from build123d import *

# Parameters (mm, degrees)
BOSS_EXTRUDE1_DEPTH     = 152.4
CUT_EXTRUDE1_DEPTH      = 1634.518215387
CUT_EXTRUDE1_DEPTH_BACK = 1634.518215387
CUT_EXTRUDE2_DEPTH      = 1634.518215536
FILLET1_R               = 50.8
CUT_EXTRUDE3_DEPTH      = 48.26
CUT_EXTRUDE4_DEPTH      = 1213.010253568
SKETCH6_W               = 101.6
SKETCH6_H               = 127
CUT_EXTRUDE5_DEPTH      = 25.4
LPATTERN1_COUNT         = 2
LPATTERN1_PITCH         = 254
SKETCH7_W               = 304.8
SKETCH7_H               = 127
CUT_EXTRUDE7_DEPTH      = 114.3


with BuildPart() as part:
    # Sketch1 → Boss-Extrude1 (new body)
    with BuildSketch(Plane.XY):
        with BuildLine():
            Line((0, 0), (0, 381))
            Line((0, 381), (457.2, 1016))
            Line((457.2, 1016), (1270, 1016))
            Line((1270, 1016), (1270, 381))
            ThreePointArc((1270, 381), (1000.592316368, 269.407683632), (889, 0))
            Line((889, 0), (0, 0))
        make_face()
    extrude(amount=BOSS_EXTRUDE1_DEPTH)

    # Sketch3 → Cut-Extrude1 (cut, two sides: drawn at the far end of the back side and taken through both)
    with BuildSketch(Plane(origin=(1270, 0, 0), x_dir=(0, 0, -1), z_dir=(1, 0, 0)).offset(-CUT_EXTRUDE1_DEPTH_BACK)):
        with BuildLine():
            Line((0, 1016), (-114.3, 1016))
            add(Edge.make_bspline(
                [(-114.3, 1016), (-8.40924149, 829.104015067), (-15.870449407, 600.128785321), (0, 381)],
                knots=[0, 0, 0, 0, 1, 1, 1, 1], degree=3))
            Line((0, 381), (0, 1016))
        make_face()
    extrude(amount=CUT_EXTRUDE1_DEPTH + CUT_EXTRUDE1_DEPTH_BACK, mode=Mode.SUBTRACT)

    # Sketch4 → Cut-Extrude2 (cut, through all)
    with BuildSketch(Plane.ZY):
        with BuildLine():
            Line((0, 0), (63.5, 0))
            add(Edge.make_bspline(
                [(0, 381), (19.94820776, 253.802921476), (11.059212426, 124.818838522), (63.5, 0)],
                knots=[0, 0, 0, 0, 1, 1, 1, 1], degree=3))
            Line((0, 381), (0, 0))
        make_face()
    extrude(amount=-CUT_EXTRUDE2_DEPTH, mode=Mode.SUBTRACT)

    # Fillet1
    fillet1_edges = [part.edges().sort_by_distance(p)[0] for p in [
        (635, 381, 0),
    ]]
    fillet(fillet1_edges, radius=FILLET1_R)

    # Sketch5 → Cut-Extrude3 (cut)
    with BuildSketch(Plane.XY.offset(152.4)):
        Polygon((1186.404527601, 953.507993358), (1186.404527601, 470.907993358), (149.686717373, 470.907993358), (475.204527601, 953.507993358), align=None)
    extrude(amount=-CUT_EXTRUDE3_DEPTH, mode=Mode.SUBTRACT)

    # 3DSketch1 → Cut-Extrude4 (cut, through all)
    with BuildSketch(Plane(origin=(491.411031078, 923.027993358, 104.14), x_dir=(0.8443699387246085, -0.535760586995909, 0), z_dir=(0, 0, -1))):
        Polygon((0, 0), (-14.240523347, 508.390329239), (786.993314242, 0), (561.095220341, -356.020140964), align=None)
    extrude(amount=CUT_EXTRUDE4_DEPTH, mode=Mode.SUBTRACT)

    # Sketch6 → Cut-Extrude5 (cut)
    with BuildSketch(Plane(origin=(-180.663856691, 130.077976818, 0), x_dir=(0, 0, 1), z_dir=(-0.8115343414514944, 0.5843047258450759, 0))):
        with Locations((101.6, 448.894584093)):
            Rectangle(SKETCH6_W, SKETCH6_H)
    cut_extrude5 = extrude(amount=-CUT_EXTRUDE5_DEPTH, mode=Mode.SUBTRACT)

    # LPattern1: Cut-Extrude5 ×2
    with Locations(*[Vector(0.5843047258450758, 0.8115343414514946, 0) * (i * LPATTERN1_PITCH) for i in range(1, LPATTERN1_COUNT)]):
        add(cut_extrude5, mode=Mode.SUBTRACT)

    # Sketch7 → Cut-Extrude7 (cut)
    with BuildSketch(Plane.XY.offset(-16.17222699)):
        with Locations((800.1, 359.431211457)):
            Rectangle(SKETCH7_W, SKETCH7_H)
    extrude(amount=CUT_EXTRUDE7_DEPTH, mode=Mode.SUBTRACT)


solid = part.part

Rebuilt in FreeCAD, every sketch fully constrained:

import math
import FreeCAD as App
import Part
import Sketcher

V = App.Vector
Q = App.Units.Quantity


def edges_at(feature, points):
    """Names of the edges that pass closest to the given points."""
    edges = feature.Shape.Edges
    near = lambda p: min(range(len(edges)), key=lambda i: edges[i].distToShape(Part.Vertex(*p))[0])
    return sorted({f"Edge{near(p) + 1}" for p in points})


def add_polygon(sketch, points):
    """Adds a closed chain of lines whose ends are joined by coincident constraints."""
    first, n = sketch.GeometryCount, len(points)
    for a, b in zip(points, points[1:] + points[:1]):
        sketch.addGeometry(Part.LineSegment(App.Vector(*a, 0), App.Vector(*b, 0)), False)
    for i in range(n):
        sketch.addConstraint(Sketcher.Constraint("Coincident", first + i, 2, first + (i + 1) % n, 1))

doc = App.newDocument("Part")
body = doc.addObject("PartDesign::Body", "Body")

sketch1 = body.newObject("Sketcher::SketchObject", "Sketch")
sketch1.AttachmentSupport = (doc.getObject("XY_Plane"), [""])
sketch1.MapMode = "FlatFace"
sketch1.addGeometry([
    Part.LineSegment(V(0, 381, 0), V(0, 0, 0)),
    Part.LineSegment(V(0, 0, 0), V(889, 0, 0)),
    Part.ArcOfCircle(Part.Circle(V(1270, 0, 0), V(0, 0, 1), 381), math.radians(90), math.radians(180)),
    Part.LineSegment(V(1270, 381, 0), V(1270, 1016, 0)),
    Part.LineSegment(V(1270, 1016, 0), V(457, 1016, 0)),
    Part.LineSegment(V(457, 1016, 0), V(0, 381, 0)),
], False)
sketch1.addConstraint([
    Sketcher.Constraint("Coincident", 0, 2, 1, 1),
    Sketcher.Constraint("Coincident", 1, 2, 2, 2),
    Sketcher.Constraint("Coincident", 2, 1, 3, 1),
    Sketcher.Constraint("Coincident", 3, 2, 4, 1),
    Sketcher.Constraint("Coincident", 4, 2, 5, 1),
    Sketcher.Constraint("Coincident", 5, 2, 0, 1),
    Sketcher.Constraint("Vertical", 0),
    Sketcher.Constraint("Horizontal", 1),
    Sketcher.Constraint("Vertical", 3),
    Sketcher.Constraint("Horizontal", 4),
    Sketcher.Constraint("Coincident", 0, 2, -1, 1),
    Sketcher.Constraint("PointOnObject", 2, 3, -1),
    Sketcher.Constraint("Horizontal", 2, 1, 5, 2),
    Sketcher.Constraint("Radius", 2, Q("15 in")),
    Sketcher.Constraint("DistanceX", 1, 1, 1, 2, Q("35 in")),
    Sketcher.Constraint("DistanceX", 4, 2, 4, 1, Q("32 in")),
    Sketcher.Constraint("DistanceY", 3, 1, 3, 2, Q("25 in")),
    Sketcher.Constraint("DistanceX", -1, 1, 3, 2, Q("50 in")),
])
pad1 = body.newObject("PartDesign::Pad", "Pad")
pad1.Profile = sketch1
pad1.Length = Q("6 in")

sketch2 = body.newObject("Sketcher::SketchObject", "Sketch001")
sketch2.AttachmentSupport = (doc.getObject("YZ_Plane"), [""])
sketch2.MapMode = "FlatFace"
sketch2.AttachmentOffset = App.Placement(V(0, 0, 50 * 25.4), App.Rotation())
sketch2.addGeometry([
    Part.LineSegment(V(1016, 0, 0), V(1016, 114.3, 0)),
    Part.BSplineCurve([V(1016, 114.3, 0), V(829.104015, 8.409241, 0), V(600.128785, 15.870449, 0), V(381, 0, 0)], [4, 4], [0, 1], False, 3, [1, 1, 1, 1], False),
    Part.LineSegment(V(381, 0, 0), V(1016, 0, 0)),
], False)
sketch2.addConstraint([
    Sketcher.Constraint("Block", 1),
    Sketcher.Constraint("Coincident", 0, 2, 1, 1),
    Sketcher.Constraint("Coincident", 1, 2, 2, 1),
    Sketcher.Constraint("Coincident", 2, 2, 0, 1),
    Sketcher.Constraint("Vertical", 0),
    Sketcher.Constraint("Horizontal", 2),
])
pocket1 = body.newObject("PartDesign::Pocket", "Pocket")
pocket1.Profile = sketch2
pocket1.Type = "ThroughAll"
pocket1.Midplane = True

sketch3 = body.newObject("Sketcher::SketchObject", "Sketch002")
sketch3.AttachmentSupport = (doc.getObject("YZ_Plane"), [""])
sketch3.MapMode = "FlatFace"
sketch3.addGeometry([
    Part.LineSegment(V(0, 0, 0), V(0, 63.5, 0)),
    Part.BSplineCurve([V(381, 0, 0), V(253.802921, 19.948208, 0), V(124.818839, 11.059212, 0), V(0, 63.5, 0)], [4, 4], [0, 1], False, 3, [1, 1, 1, 1], False),
    Part.LineSegment(V(381, 0, 0), V(0, 0, 0)),
], False)
sketch3.addConstraint([
    Sketcher.Constraint("Block", 1),
    Sketcher.Constraint("Coincident", 0, 2, 1, 2),
    Sketcher.Constraint("Coincident", 1, 1, 2, 1),
    Sketcher.Constraint("Coincident", 2, 2, 0, 1),
    Sketcher.Constraint("Vertical", 0),
    Sketcher.Constraint("Horizontal", 2),
])
pocket2 = body.newObject("PartDesign::Pocket", "Pocket001")
pocket2.Profile = sketch3
pocket2.Type = "ThroughAll"
pocket2.Reversed = True
doc.recompute()

fillet = body.newObject("PartDesign::Fillet", "Fillet")
fillet.Base = (pocket2, edges_at(pocket2, [(635, 381, 0)]))
fillet.Radius = Q("2 in")

sketch4 = body.newObject("Sketcher::SketchObject", "Sketch003")
sketch4.AttachmentSupport = (doc.getObject("XY_Plane"), [""])
sketch4.MapMode = "FlatFace"
sketch4.AttachmentOffset = App.Placement(V(0, 0, 6 * 25.4), App.Rotation())
add_polygon(sketch4, [(1186, 471), (1186, 954), (475, 954), (150, 471)])
sketch4.addConstraint([
    Sketcher.Constraint("Vertical", 0),
    Sketcher.Constraint("Horizontal", 1),
    Sketcher.Constraint("Horizontal", 3),
    Sketcher.Constraint("DistanceX", 1, 2, 1, 1, Q("28 in")),
    Sketcher.Constraint("DistanceY", 0, 1, 0, 2, Q("19 in")),
    Sketcher.Constraint("Angle", 2, Q("-124 deg")),
    Sketcher.Constraint("DistanceX", -1, 1, 0, 2, 1186.404528),
    Sketcher.Constraint("DistanceY", -1, 1, 0, 2, 953.507993),
])
pocket3 = body.newObject("PartDesign::Pocket", "Pocket002")
pocket3.Profile = sketch4
pocket3.Length = Q("1.9 in")

sketch5 = body.newObject("Sketcher::SketchObject", "Sketch004")
sketch5.AttachmentSupport = (doc.getObject("XY_Plane"), [""])
sketch5.MapMode = "FlatFace"
sketch5.AttachmentOffset = App.Placement(V(0, 0, 4.1 * 25.4), App.Rotation())
add_polygon(sketch5, [(207, 501), (491, 923), (1156, 923), (1156, 501)])
sketch5.addConstraint([
    Sketcher.Constraint("Horizontal", 1),
    Sketcher.Constraint("Vertical", 2),
    Sketcher.Constraint("Horizontal", 3),
    Sketcher.Constraint("DistanceY", 2, 2, 2, 1, Q("16.6 in")),
    Sketcher.Constraint("Angle", 0, Q("56 deg")),
    Sketcher.Constraint("DistanceX", 1, 1, 1, 2, 664.513497),
    Sketcher.Constraint("DistanceX", -1, 1, 0, 2, 491.411031),
    Sketcher.Constraint("DistanceY", -1, 1, 0, 2, 923.027993),
])
pocket4 = body.newObject("PartDesign::Pocket", "Pocket003")
pocket4.Profile = sketch5
pocket4.Type = "ThroughAll"

sketch6 = body.newObject("Sketcher::SketchObject", "Sketch005")
sketch6.Placement = App.Placement(V(-180.663857, 130.077977, 0), App.Rotation(V(0, 0, 1), V(0.584304726, 0.811534341, 0), V(-0.811534341, 0.584304726, 0), "ZXY"))
add_polygon(sketch6, [(51, 512), (51, 385), (152, 385), (152, 512)])
sketch6.addConstraint([
    Sketcher.Constraint("Vertical", 0),
    Sketcher.Constraint("Horizontal", 1),
    Sketcher.Constraint("Vertical", 2),
    Sketcher.Constraint("Horizontal", 3),
    Sketcher.Constraint("DistanceX", 1, 1, 1, 2, Q("4 in")),
    Sketcher.Constraint("DistanceY", 0, 2, 0, 1, Q("5 in")),
    Sketcher.Constraint("DistanceX", -1, 1, 0, 2, Q("2 in")),
    Sketcher.Constraint("DistanceY", -1, 1, 0, 2, 385.394584),
])
pocket5 = body.newObject("PartDesign::Pocket", "Pocket004")
pocket5.Profile = sketch6
pocket5.Length = Q("1 in")
doc.recompute()

datumline = body.newObject("PartDesign::Line", "DatumLine")
datumline.Placement = App.Placement(V(0, 0, 0), App.Rotation(V(0, 0, 1), V(0.584304726, 0.811534341, 0)))
linearpattern = body.newObject("PartDesign::LinearPattern", "LinearPattern")
linearpattern.Originals = [pocket5]
linearpattern.Direction = (datumline, [""])
linearpattern.Mode = "offset"
linearpattern.Offset = Q("10 in")
linearpattern.Occurrences = 2
body.Tip = linearpattern

sketch7 = body.newObject("Sketcher::SketchObject", "Sketch006")
sketch7.AttachmentSupport = (doc.getObject("XY_Plane"), [""])
sketch7.MapMode = "FlatFace"
sketch7.AttachmentOffset = App.Placement(V(0, 0, -16.172227), App.Rotation())
add_polygon(sketch7, [(648, 423), (648, 296), (952, 296), (952, 423)])
sketch7.addConstraint([
    Sketcher.Constraint("Vertical", 0),
    Sketcher.Constraint("Horizontal", 1),
    Sketcher.Constraint("Vertical", 2),
    Sketcher.Constraint("Horizontal", 3),
    Sketcher.Constraint("DistanceX", 1, 1, 1, 2, Q("12 in")),
    Sketcher.Constraint("DistanceY", 0, 2, 0, 1, Q("5 in")),
    Sketcher.Constraint("DistanceX", -1, 1, 0, 2, Q("25.5 in")),
    Sketcher.Constraint("DistanceY", -1, 1, 0, 2, 295.931211),
])
pocket6 = body.newObject("PartDesign::Pocket", "Pocket005")
pocket6.Profile = sketch7
pocket6.Length = Q("4.5 in")
pocket6.Reversed = True

doc.recompute()
